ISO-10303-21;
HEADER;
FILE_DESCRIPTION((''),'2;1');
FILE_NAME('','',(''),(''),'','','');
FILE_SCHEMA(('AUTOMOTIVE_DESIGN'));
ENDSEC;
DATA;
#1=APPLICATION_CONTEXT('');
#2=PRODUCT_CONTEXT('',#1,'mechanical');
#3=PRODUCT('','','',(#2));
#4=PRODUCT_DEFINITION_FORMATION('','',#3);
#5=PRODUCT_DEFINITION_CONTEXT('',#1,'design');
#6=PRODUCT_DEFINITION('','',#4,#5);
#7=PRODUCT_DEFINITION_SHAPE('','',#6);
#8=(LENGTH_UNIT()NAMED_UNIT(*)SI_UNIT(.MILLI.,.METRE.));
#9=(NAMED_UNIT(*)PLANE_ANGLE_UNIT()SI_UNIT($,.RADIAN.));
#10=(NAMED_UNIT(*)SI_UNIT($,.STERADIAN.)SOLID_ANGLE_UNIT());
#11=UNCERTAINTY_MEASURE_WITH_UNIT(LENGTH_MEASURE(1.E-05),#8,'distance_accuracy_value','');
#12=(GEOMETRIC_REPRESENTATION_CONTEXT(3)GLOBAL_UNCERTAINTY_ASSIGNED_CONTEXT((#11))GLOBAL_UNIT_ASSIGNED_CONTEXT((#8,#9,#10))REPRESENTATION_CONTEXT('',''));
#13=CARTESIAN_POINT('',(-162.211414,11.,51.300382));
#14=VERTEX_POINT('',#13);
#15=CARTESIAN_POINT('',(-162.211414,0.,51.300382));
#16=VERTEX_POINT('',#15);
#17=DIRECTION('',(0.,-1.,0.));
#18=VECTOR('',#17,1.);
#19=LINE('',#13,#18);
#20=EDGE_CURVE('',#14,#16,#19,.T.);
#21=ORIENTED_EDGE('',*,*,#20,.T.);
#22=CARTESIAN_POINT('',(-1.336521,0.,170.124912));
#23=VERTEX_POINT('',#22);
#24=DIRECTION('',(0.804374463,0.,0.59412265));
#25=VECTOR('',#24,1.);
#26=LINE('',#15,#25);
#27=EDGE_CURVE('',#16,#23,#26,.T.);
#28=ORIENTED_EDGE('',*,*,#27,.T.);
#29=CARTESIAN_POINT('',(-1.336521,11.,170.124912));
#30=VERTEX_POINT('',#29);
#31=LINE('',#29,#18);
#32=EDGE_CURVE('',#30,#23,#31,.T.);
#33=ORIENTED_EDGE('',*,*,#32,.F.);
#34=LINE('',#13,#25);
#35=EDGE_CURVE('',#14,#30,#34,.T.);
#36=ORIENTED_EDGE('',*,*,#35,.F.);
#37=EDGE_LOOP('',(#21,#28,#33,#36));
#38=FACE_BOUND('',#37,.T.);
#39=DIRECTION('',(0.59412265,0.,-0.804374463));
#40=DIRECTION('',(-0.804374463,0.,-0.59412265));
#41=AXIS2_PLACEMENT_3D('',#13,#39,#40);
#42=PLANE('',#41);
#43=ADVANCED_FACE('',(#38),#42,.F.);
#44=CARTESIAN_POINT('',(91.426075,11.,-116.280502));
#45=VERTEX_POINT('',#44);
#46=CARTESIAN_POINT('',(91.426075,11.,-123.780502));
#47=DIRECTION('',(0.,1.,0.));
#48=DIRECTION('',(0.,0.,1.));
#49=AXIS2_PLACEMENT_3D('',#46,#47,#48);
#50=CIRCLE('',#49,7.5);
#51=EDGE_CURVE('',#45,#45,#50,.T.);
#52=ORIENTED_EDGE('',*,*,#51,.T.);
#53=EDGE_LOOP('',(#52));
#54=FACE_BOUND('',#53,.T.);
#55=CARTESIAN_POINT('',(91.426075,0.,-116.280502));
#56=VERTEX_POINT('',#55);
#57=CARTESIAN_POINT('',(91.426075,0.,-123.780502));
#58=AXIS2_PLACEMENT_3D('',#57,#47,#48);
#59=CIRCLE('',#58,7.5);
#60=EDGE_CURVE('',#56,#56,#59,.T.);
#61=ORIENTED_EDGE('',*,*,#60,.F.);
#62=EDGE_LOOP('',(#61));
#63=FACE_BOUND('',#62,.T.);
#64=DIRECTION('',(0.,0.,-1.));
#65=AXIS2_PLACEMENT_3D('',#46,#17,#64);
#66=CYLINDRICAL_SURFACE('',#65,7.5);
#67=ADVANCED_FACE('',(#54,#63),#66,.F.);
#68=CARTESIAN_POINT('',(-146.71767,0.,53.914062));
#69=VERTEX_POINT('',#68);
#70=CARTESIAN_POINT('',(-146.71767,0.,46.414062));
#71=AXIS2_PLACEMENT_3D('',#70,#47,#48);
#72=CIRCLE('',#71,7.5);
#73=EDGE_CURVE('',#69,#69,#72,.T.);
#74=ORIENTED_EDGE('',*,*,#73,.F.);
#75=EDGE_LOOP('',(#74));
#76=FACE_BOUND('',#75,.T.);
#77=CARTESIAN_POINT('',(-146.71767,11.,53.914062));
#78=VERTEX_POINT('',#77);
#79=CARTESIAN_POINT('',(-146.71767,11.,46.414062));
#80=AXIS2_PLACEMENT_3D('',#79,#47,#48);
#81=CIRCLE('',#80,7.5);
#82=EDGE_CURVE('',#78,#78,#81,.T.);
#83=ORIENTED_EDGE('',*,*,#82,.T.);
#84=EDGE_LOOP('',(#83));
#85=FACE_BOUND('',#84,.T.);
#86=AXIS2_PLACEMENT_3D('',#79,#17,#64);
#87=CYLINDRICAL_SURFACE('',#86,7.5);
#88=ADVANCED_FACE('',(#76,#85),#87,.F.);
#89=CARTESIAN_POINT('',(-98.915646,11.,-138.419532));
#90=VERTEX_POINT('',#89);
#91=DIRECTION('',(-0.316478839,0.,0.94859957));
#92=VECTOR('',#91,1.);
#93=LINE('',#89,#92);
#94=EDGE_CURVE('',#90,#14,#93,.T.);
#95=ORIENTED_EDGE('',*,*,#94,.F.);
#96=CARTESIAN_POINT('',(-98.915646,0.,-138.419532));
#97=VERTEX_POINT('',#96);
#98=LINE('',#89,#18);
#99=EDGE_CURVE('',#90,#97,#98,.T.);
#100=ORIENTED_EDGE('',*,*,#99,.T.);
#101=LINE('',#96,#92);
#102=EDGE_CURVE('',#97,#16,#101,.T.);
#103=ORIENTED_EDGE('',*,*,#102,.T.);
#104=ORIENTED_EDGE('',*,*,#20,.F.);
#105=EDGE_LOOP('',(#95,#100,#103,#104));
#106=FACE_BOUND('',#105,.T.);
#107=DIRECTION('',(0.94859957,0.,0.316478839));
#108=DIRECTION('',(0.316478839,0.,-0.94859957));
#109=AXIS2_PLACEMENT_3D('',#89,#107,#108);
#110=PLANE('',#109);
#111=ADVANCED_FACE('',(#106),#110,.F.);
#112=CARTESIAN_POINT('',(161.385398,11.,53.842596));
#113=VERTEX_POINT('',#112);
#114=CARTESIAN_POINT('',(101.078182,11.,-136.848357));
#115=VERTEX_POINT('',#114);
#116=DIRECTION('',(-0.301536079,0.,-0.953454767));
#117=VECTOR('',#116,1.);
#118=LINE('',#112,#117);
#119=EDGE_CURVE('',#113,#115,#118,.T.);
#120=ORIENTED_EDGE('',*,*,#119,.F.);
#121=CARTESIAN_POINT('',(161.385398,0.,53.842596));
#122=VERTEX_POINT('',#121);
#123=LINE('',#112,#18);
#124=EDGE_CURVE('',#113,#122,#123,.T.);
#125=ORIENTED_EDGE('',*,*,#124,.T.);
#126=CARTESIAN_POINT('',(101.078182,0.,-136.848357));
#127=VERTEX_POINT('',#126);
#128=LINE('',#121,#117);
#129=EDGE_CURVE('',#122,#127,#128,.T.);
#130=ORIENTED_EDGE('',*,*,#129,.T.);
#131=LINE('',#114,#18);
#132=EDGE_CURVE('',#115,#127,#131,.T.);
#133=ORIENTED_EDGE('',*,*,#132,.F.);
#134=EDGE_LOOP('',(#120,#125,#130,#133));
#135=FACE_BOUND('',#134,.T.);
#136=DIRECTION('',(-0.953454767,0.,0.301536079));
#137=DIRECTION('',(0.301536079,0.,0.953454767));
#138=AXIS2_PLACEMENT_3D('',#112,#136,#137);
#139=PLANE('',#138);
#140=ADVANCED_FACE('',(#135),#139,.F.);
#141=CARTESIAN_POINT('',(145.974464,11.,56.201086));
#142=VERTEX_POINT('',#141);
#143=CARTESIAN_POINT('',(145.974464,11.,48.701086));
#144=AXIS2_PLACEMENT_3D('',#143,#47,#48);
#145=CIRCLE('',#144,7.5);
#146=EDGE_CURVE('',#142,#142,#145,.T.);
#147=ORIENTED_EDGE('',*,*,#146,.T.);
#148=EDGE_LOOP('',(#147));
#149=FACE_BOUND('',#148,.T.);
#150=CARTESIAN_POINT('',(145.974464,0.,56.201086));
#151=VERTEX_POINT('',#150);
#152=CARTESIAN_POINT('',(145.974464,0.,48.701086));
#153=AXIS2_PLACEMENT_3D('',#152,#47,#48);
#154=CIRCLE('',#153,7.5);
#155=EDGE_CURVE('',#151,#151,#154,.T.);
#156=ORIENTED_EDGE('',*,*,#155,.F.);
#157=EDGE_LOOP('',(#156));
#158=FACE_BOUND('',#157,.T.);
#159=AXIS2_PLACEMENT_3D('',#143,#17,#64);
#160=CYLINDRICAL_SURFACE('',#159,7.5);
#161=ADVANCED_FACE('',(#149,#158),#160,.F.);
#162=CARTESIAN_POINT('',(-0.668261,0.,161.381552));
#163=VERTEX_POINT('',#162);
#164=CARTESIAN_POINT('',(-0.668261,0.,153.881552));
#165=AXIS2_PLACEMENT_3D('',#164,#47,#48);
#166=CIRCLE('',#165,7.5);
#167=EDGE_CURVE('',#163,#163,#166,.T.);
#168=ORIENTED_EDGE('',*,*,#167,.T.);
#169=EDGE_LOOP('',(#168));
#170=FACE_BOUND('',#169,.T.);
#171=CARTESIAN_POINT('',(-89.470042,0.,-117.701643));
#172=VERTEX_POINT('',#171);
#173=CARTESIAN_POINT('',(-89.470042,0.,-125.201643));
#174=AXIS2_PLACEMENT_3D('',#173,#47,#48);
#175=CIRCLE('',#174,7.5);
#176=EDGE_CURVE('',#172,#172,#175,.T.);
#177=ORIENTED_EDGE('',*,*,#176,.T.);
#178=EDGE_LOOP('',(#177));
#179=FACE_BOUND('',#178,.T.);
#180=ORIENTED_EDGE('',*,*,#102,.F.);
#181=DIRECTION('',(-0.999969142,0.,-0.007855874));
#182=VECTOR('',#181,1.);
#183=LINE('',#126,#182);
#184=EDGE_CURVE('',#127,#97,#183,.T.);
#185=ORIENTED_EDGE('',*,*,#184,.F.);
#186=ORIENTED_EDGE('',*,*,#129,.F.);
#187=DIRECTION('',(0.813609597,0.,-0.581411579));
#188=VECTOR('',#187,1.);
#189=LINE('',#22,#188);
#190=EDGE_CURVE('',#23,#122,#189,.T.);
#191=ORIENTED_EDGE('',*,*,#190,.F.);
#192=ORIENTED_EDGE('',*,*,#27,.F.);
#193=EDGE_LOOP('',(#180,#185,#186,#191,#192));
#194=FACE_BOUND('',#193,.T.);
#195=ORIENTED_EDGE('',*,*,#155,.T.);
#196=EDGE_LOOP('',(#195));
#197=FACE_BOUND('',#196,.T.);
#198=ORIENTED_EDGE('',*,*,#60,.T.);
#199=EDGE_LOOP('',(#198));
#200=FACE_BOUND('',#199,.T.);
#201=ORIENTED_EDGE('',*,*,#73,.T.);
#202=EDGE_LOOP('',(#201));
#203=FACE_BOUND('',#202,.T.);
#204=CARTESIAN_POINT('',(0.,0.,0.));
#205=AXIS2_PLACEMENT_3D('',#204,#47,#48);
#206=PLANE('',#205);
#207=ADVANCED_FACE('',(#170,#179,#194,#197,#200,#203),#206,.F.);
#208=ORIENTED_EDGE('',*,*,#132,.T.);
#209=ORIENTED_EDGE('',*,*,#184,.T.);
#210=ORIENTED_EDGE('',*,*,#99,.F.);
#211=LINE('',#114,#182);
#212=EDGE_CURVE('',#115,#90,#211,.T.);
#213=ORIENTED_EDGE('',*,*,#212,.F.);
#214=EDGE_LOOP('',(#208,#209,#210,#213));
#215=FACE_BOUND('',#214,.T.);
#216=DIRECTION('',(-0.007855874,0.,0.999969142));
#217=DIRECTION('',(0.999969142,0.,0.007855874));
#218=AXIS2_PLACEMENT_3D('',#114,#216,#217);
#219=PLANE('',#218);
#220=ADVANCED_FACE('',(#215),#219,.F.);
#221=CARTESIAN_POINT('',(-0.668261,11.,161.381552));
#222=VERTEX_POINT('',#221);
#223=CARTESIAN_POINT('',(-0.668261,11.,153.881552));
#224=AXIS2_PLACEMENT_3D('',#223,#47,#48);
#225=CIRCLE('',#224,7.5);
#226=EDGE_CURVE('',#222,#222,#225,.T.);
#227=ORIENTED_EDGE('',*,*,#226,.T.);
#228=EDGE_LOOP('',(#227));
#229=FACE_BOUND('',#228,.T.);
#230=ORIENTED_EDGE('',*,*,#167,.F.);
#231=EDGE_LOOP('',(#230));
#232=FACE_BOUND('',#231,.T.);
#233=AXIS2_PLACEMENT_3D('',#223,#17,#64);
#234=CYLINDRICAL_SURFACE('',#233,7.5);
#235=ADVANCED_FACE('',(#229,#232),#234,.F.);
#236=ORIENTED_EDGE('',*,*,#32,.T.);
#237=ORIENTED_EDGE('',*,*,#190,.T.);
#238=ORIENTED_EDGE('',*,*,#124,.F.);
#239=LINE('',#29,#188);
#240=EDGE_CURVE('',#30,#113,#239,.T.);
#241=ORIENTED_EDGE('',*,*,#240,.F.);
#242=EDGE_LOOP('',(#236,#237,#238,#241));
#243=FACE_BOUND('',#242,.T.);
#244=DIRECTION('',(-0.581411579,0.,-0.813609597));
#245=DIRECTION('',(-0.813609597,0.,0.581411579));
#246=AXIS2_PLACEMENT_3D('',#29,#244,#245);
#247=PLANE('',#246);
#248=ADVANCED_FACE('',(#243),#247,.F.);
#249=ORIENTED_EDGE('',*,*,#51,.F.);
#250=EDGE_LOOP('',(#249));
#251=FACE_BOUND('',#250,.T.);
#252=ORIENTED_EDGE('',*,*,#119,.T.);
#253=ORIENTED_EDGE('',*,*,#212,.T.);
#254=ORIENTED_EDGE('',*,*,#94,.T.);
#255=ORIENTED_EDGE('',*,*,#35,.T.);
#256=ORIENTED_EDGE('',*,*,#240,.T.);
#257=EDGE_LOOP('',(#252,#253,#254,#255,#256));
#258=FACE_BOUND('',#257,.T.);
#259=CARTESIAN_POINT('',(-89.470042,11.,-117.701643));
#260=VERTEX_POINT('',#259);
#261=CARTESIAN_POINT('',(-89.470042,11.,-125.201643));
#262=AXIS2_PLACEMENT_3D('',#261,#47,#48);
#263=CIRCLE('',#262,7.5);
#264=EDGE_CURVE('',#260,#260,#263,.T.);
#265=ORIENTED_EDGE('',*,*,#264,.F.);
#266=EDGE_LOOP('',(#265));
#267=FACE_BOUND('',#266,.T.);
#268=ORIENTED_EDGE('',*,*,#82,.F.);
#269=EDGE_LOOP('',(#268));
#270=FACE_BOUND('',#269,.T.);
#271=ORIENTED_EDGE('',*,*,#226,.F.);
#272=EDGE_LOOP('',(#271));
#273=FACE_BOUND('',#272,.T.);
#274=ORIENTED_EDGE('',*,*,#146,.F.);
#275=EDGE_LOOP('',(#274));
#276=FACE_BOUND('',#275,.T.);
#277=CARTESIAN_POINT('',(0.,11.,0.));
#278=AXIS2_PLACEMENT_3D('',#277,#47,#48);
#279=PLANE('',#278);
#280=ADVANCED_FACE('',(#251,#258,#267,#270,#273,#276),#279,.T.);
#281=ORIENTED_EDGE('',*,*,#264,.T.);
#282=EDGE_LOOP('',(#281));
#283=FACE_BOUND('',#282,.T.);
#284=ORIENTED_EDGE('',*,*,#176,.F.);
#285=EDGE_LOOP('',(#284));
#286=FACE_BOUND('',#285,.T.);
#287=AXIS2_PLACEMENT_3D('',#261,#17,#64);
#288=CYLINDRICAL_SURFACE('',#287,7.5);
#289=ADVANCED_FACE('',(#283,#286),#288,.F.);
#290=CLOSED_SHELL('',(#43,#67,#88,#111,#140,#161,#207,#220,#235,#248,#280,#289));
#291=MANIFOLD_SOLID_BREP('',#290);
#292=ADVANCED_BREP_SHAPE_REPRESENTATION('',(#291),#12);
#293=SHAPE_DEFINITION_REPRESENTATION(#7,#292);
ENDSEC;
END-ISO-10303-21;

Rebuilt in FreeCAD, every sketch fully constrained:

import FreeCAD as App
import Part
import Sketcher

V = App.Vector

doc = App.newDocument("Part")
body = doc.addObject("PartDesign::Body", "Body")

# Sketch on XZ plane
sketch1 = body.newObject("Sketcher::SketchObject", "Sketch")
sketch1.AttachmentSupport = (doc.getObject("XZ_Plane"), [""])
sketch1.MapMode = "FlatFace"
sketch1.addGeometry([
    Part.LineSegment(V(161, 54, 0), V(101, -137, 0)),  # 0
    Part.LineSegment(V(101, -137, 0), V(-99, -138, 0)),  # 1
    Part.LineSegment(V(-99, -138, 0), V(-162, 51, 0)),  # 2
    Part.LineSegment(V(-162, 51, 0), V(-1, 170, 0)),  # 3
    Part.LineSegment(V(-1, 170, 0), V(161, 54, 0)),  # 4
    Part.Circle(V(-1, 154, 0), V(0, 0, 1), 8),  # 5
    Part.Circle(V(-147, 46, 0), V(0, 0, 1), 8),  # 6
    Part.Circle(V(146, 49, 0), V(0, 0, 1), 8),  # 7
    Part.Circle(V(-89, -125, 0), V(0, 0, 1), 8),  # 8
    Part.Circle(V(91, -124, 0), V(0, 0, 1), 8),  # 9
], False)
sketch1.addConstraint([
    Sketcher.Constraint("Coincident", 0, 2, 1, 1),
    Sketcher.Constraint("Coincident", 1, 2, 2, 1),
    Sketcher.Constraint("Coincident", 2, 2, 3, 1),
    Sketcher.Constraint("Coincident", 3, 2, 4, 1),
    Sketcher.Constraint("Coincident", 4, 2, 0, 1),
    Sketcher.Constraint("Equal", 5, 6),
    Sketcher.Constraint("Equal", 6, 7),
    Sketcher.Constraint("Equal", 7, 8),
    Sketcher.Constraint("Equal", 8, 9),
    Sketcher.Constraint("Equal", 0, 1),
    Sketcher.Constraint("Equal", 1, 2),
    Sketcher.Constraint("Equal", 2, 3),
    Sketcher.Constraint("Equal", 3, 4),
    Sketcher.Constraint("Diameter", 5, 15.0),
    Sketcher.Constraint("Distance", 0, 200.0),
    Sketcher.Constraint("DistanceX", -1, 1, 4, 2, 161.385398),
    Sketcher.Constraint("DistanceY", 9, 3, 4, 2, 177.623098),
    Sketcher.Constraint("DistanceX", 5, 3, -1, 1, 0.668261),
    Sketcher.Constraint("DistanceY", -1, 1, 5, 3, 153.881552),
    Sketcher.Constraint("DistanceX", 6, 3, -1, 1, 146.71767),
    Sketcher.Constraint("DistanceY", -1, 1, 6, 3, 46.414062),
    Sketcher.Constraint("DistanceY", -1, 1, 2, 2, 51.300382),
    Sketcher.Constraint("DistanceX", 3, 2, -1, 1, 1.336521),
    Sketcher.Constraint("DistanceY", -1, 1, 3, 2, 170.124912),
    Sketcher.Constraint("DistanceY", 8, 3, 7, 3, 173.902729),
    Sketcher.Constraint("DistanceX", 8, 3, 5, 3, 88.801782),
    Sketcher.Constraint("DistanceX", 9, 3, 7, 3, 54.548389),
    Sketcher.Constraint("DistanceY", 8, 3, 9, 3, 1.421141),
    Sketcher.Constraint("DistanceX", 0, 2, 7, 3, 44.896282),
    Sketcher.Constraint("DistanceY", 0, 2, 5, 3, 290.729909),
])
pad1 = body.newObject("PartDesign::Pad", "Pad")
pad1.Profile = sketch1
pad1.Length = 11
pad1.Reversed = True

doc.recompute()
